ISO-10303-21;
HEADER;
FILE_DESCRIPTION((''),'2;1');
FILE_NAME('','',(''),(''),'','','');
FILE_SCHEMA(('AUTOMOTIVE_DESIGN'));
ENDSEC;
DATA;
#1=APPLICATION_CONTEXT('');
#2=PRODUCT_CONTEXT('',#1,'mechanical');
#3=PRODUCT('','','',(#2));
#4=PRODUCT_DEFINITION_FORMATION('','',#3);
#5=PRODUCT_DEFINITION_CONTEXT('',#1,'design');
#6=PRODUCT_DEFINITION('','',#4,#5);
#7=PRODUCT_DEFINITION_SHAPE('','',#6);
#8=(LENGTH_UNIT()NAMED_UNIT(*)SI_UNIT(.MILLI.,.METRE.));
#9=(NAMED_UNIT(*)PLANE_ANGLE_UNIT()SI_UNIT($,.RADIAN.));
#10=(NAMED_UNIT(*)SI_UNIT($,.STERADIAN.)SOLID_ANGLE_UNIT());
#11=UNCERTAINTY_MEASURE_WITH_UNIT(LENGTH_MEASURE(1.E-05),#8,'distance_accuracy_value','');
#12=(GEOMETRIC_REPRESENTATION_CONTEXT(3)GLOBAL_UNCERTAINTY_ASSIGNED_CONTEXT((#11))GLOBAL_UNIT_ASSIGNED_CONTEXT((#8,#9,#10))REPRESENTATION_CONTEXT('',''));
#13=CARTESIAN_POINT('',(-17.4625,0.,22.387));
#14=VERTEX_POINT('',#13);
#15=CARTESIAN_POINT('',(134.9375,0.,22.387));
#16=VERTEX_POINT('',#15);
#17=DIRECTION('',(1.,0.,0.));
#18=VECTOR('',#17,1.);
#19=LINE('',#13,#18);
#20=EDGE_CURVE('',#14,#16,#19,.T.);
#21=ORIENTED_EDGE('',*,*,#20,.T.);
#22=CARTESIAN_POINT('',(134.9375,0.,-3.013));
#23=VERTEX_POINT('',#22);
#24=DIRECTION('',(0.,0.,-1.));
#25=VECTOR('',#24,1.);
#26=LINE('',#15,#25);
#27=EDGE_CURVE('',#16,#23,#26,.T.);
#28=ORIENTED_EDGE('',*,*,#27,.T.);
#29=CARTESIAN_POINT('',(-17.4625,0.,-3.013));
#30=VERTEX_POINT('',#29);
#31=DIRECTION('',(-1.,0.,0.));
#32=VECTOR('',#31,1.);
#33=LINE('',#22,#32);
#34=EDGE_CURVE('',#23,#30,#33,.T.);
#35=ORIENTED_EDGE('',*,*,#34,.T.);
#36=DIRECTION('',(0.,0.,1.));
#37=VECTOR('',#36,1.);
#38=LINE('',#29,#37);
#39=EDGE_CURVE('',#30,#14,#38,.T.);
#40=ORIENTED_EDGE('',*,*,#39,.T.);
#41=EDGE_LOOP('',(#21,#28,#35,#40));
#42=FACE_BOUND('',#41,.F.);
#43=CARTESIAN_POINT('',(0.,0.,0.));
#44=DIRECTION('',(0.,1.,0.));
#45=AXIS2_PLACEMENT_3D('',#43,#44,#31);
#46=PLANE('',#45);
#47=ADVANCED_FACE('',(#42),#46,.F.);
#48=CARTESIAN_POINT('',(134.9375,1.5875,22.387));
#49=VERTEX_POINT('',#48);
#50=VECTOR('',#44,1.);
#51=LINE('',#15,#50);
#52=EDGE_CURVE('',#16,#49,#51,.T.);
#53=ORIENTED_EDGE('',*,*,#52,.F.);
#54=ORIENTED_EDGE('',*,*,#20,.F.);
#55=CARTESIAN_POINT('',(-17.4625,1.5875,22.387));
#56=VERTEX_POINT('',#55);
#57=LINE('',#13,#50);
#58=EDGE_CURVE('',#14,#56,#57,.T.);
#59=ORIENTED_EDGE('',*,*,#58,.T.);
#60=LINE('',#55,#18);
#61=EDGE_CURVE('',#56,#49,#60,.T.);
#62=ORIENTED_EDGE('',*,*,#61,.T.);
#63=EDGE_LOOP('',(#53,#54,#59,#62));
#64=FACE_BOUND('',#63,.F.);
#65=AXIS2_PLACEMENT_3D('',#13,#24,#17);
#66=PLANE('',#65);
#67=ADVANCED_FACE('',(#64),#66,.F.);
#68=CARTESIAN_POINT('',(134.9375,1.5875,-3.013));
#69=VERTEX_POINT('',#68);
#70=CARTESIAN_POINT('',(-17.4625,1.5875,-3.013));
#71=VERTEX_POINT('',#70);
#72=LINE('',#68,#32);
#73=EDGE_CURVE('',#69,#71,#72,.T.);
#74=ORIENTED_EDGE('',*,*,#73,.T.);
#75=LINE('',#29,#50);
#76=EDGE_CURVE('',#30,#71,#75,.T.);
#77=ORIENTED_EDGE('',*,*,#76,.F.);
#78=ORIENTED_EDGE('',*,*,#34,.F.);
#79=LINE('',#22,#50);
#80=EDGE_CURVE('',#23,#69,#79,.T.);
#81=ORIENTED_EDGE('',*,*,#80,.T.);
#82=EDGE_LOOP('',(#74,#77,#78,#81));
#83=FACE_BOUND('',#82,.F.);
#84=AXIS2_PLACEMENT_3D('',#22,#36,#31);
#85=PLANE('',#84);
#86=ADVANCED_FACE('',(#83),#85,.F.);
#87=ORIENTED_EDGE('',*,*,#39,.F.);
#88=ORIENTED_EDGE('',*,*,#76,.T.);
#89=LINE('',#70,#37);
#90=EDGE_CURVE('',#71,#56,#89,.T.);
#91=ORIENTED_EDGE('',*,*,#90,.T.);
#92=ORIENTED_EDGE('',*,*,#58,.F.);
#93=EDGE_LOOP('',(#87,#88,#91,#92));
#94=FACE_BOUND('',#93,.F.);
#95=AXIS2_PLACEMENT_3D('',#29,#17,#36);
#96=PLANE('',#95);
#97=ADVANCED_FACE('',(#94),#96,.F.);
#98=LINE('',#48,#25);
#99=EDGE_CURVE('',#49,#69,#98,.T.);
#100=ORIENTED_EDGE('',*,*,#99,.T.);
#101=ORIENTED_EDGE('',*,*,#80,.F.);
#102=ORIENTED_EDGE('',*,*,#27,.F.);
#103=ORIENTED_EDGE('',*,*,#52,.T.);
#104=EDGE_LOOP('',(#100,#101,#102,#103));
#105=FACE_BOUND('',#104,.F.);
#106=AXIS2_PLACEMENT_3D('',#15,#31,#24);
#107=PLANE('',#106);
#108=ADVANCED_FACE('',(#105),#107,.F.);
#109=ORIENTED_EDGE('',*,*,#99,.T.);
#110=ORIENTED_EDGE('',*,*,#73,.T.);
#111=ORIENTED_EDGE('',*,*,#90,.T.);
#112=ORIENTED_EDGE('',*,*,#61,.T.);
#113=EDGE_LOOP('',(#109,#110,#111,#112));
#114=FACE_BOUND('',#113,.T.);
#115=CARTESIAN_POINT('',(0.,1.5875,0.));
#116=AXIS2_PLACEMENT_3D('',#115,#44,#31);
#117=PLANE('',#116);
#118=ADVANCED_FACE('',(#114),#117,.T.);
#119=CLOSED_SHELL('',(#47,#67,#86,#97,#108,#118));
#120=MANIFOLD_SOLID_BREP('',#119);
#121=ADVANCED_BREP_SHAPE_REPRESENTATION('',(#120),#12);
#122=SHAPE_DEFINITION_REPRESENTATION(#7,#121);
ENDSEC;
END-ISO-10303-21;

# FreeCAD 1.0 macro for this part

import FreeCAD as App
import Part
import Sketcher

V = App.Vector
Q = App.Units.Quantity

doc = App.newDocument("Part")
body = doc.addObject("PartDesign::Body", "Body")

# Sketch on XZ plane
sketch1 = body.newObject("Sketcher::SketchObject", "Sketch")
sketch1.AttachmentSupport = (doc.getObject("XZ_Plane"), [""])
sketch1.MapMode = "FlatFace"
sketch1.addGeometry([
    Part.LineSegment(V(-17.4625, -3.013, 0), V(-17.4625, 22.387, 0)),
    Part.LineSegment(V(-17.4625, 22.387, 0), V(134.9375, 22.387, 0)),
    Part.LineSegment(V(134.9375, 22.387, 0), V(134.9375, -3.013, 0)),
    Part.LineSegment(V(134.9375, -3.013, 0), V(-17.4625, -3.013, 0)),
], False)
sketch1.addConstraint([
    Sketcher.Constraint("Coincident", 0, 2, 1, 1),
    Sketcher.Constraint("Coincident", 1, 2, 2, 1),
    Sketcher.Constraint("Coincident", 2, 2, 3, 1),
    Sketcher.Constraint("Coincident", 3, 2, 0, 1),
    Sketcher.Constraint("Vertical", 0),
    Sketcher.Constraint("Horizontal", 1),
    Sketcher.Constraint("Vertical", 2),
    Sketcher.Constraint("Horizontal", 3),
    Sketcher.Constraint("DistanceX", 1, 1, 1, 2, Q("6 in")),
    Sketcher.Constraint("DistanceY", 0, 1, 0, 2, Q("1 in")),
    Sketcher.Constraint("DistanceX", 0, 2, -1, 1, Q("0.6875 in")),
    Sketcher.Constraint("DistanceY", -1, 1, 0, 2, 22.387),
])
pad1 = body.newObject("PartDesign::Pad", "Pad")
pad1.Profile = sketch1
pad1.Length = Q("0.0625 in")
pad1.Reversed = True

doc.recompute()
